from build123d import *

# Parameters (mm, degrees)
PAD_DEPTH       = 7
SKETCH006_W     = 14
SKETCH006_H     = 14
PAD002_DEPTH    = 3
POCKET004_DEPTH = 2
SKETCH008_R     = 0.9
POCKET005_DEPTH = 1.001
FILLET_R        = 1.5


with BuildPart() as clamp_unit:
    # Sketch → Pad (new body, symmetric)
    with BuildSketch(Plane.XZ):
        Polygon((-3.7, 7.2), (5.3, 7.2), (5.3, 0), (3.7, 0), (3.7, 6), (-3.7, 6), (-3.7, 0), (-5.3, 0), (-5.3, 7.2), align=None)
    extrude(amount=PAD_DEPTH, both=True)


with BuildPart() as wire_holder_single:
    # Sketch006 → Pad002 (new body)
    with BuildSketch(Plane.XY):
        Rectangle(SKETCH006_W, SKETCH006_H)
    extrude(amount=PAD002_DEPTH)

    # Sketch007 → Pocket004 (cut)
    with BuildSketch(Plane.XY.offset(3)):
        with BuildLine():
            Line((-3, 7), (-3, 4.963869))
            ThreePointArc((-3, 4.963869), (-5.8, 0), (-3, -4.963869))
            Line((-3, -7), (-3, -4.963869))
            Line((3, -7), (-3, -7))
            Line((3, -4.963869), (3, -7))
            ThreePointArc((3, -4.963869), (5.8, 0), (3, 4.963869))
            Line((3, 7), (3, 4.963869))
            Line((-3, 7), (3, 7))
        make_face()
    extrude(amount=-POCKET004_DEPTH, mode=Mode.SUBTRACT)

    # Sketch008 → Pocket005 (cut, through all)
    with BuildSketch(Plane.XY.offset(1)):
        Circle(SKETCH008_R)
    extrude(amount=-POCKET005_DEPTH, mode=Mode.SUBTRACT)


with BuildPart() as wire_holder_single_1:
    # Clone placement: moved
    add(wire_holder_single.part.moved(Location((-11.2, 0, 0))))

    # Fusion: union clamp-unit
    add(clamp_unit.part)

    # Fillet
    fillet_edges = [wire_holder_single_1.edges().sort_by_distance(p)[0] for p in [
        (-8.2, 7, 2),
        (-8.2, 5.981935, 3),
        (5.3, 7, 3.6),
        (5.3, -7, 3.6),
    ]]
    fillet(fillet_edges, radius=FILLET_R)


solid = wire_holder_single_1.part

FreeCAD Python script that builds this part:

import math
import FreeCAD as App
import Part
import Sketcher

V = App.Vector
Q = App.Units.Quantity


def edges_at(feature, points):
    """Names of the edges that pass closest to the given points."""
    edges = feature.Shape.Edges
    near = lambda p: min(range(len(edges)), key=lambda i: edges[i].distToShape(Part.Vertex(*p))[0])
    return sorted({f"Edge{near(p) + 1}" for p in points})


def add_polygon(sketch, points):
    """Adds a closed chain of lines whose ends are joined by coincident constraints."""
    first, n = sketch.GeometryCount, len(points)
    for a, b in zip(points, points[1:] + points[:1]):
        sketch.addGeometry(Part.LineSegment(App.Vector(*a, 0), App.Vector(*b, 0)), False)
    for i in range(n):
        sketch.addConstraint(Sketcher.Constraint("Coincident", first + i, 2, first + (i + 1) % n, 1))

doc = App.newDocument("Part")
body = doc.addObject("PartDesign::Body", "Body")

# Sketch on XZ plane
sketch1 = doc.addObject("Sketcher::SketchObject", "Sketch")
body.addObject(sketch1)
sketch1.AttachmentSupport = (doc.XZ_Plane, [""])
sketch1.MapMode = "FlatFace"
add_polygon(sketch1, [(5.3, 7.2), (-5.3, 7.2), (-5.3, 0), (-3.7, 0), (-3.7, 6), (3.7, 6), (3.7, 0), (5.3, 0)])  # lines 0-7
sketch1.addConstraint([
    Sketcher.Constraint("Horizontal", 0),
    Sketcher.Constraint("Vertical", 1),
    Sketcher.Constraint("Horizontal", 2),
    Sketcher.Constraint("Vertical", 3),
    Sketcher.Constraint("Horizontal", 4),
    Sketcher.Constraint("Vertical", 5),
    Sketcher.Constraint("Horizontal", 6),
    Sketcher.Constraint("Vertical", 7),
    Sketcher.Constraint("Symmetric", 2, 2, 5, 2, -1, 1),
    Sketcher.Constraint("Symmetric", 1, 2, 6, 2, -2),
    Sketcher.Constraint("DistanceY", 3, 1, 3, 2, Q("6 mm")),
    Sketcher.Constraint("DistanceX", 0, 2, 0, 1, Q("10.6 mm")),
    Sketcher.Constraint("DistanceX", 2, 1, 2, 2, Q("1.6 mm")),
    Sketcher.Constraint("DistanceY", 1, 2, 1, 1, Q("7.2 mm")),
])
pad1 = doc.addObject("PartDesign::Pad", "Pad")
body.addObject(pad1)
pad1.Profile = sketch1
pad1.Length = 14
pad1.Midplane = True
body2 = doc.addObject("PartDesign::Body", "Body001")

# Sketch on XY plane
sketch2 = doc.addObject("Sketcher::SketchObject", "Sketch001")
body2.addObject(sketch2)
sketch2.AttachmentSupport = (doc.getObject("XY_Plane001"), [""])
sketch2.MapMode = "FlatFace"
add_polygon(sketch2, [(-7, 7), (-7, -7), (7, -7), (7, 7)])  # lines 0-3
sketch2.addConstraint([
    Sketcher.Constraint("Vertical", 0),
    Sketcher.Constraint("Horizontal", 1),
    Sketcher.Constraint("Vertical", 2),
    Sketcher.Constraint("Horizontal", 3),
    Sketcher.Constraint("Symmetric", 0, 2, 2, 2, -1, 1),
    Sketcher.Constraint("Equal", 3, 0),
    Sketcher.Constraint("DistanceX", 1, 1, 1, 2, Q("14 mm")),
])
pad2 = doc.addObject("PartDesign::Pad", "Pad001")
body2.addObject(pad2)
pad2.Profile = sketch2
pad2.Length = 3

# Sketch on XY plane
sketch3 = doc.addObject("Sketcher::SketchObject", "Sketch002")
body2.addObject(sketch3)
sketch3.AttachmentSupport = (doc.getObject("XY_Plane001"), [""])
sketch3.MapMode = "FlatFace"
sketch3.AttachmentOffset = App.Placement(V(0, 0, 3), App.Rotation())
sketch3.addGeometry([
    Part.LineSegment(V(-3, 7, 0), V(-3, 4.963869, 0)),  # 0
    Part.ArcOfCircle(Part.Circle(V(-0.000001, 0, 0), V(0, 0, 1), 5.799999), math.radians(121.147385), math.radians(238.852615)),  # 1
    Part.LineSegment(V(-3, -4.963869, 0), V(-3, -7, 0)),  # 2
    Part.LineSegment(V(-3, -7, 0), V(3, -7, 0)),  # 3
    Part.LineSegment(V(3, -7, 0), V(3, -4.963869, 0)),  # 4
    Part.ArcOfCircle(Part.Circle(V(0.000001, 0, 0), V(0, 0, 1), 5.799999), math.radians(-58.852615), math.radians(58.852615)),  # 5
    Part.LineSegment(V(3, 4.963869, 0), V(3, 7, 0)),  # 6
    Part.LineSegment(V(3, 7, 0), V(-3, 7, 0)),  # 7
], False)
sketch3.addConstraint([
    Sketcher.Constraint("Coincident", 0, 2, 1, 1),
    Sketcher.Constraint("Coincident", 1, 2, 2, 1),
    Sketcher.Constraint("Coincident", 2, 2, 3, 1),
    Sketcher.Constraint("Coincident", 3, 2, 4, 1),
    Sketcher.Constraint("Coincident", 4, 2, 5, 1),
    Sketcher.Constraint("Coincident", 5, 2, 6, 1),
    Sketcher.Constraint("Coincident", 6, 2, 7, 1),
    Sketcher.Constraint("Coincident", 7, 2, 0, 1),
    Sketcher.Constraint("Vertical", 0),
    Sketcher.Constraint("Vertical", 2),
    Sketcher.Constraint("Horizontal", 3),
    Sketcher.Constraint("Vertical", 4),
    Sketcher.Constraint("Vertical", 6),
    Sketcher.Constraint("Horizontal", 7),
    Sketcher.Constraint("Coincident", 1, 3, -1, 1),
    Sketcher.Constraint("Coincident", 5, 3, -1, 1),
    Sketcher.Constraint("Equal", 1, 5),
    Sketcher.Constraint("Symmetric", 2, 2, 6, 2, -1, 1),
    Sketcher.Constraint("Horizontal", 1, 2, 4, 2),
    Sketcher.Constraint("Horizontal", 0, 2, 5, 2),
    Sketcher.Constraint("Radius", 1, Q("5.799999 mm")),
    Sketcher.Constraint("DistanceX", 3, 1, 3, 2, Q("6 mm")),
    Sketcher.Constraint("DistanceY", 2, 2, -1, 1, Q("7 mm")),
])
pocket1 = doc.addObject("PartDesign::Pocket", "Pocket")
body2.addObject(pocket1)
pocket1.Profile = sketch3
pocket1.Length = 2

# Sketch on XY plane
sketch4 = doc.addObject("Sketcher::SketchObject", "Sketch003")
body2.addObject(sketch4)
sketch4.AttachmentSupport = (doc.getObject("XY_Plane001"), [""])
sketch4.MapMode = "FlatFace"
sketch4.AttachmentOffset = App.Placement(V(0, 0, 1), App.Rotation())
sketch4.addGeometry(Part.Circle(V(0, 0, 0), V(0, 0, 1), 0.9), False)
sketch4.addConstraint([
    Sketcher.Constraint("Coincident", 0, 3, -1, 1),
    Sketcher.Constraint("Diameter", 0, Q("1.8 mm")),
])
pocket2 = doc.addObject("PartDesign::Pocket", "Pocket001")
body2.addObject(pocket2)
pocket2.Profile = sketch4
pocket2.Type = "ThroughAll"
body3 = doc.addObject("PartDesign::Body", "Body002")
doc.recompute()

body2.Placement = App.Placement(V(-11.2, 0, 0), App.Rotation(V(0, 0, 1), 0))
boolean = doc.addObject("PartDesign::Boolean", "Boolean")
body3.addObject(boolean)
boolean.Type = "Fuse"
boolean.addObjects([body2])
doc.recompute()

boolean2 = doc.addObject("PartDesign::Boolean", "Boolean001")
body3.addObject(boolean2)
boolean2.Type = "Fuse"
boolean2.addObjects([body])
doc.recompute()

fillet = doc.addObject("PartDesign::Fillet", "Fillet")
body3.addObject(fillet)
fillet.Base = (boolean2, edges_at(boolean2, [
    (-8.2, 7, 2),
    (-8.2, 5.982, 3),
    (5.3, 7, 3.6),
    (5.3, -7, 3.6),
]))
fillet.Radius = 1.5

doc.recompute()
